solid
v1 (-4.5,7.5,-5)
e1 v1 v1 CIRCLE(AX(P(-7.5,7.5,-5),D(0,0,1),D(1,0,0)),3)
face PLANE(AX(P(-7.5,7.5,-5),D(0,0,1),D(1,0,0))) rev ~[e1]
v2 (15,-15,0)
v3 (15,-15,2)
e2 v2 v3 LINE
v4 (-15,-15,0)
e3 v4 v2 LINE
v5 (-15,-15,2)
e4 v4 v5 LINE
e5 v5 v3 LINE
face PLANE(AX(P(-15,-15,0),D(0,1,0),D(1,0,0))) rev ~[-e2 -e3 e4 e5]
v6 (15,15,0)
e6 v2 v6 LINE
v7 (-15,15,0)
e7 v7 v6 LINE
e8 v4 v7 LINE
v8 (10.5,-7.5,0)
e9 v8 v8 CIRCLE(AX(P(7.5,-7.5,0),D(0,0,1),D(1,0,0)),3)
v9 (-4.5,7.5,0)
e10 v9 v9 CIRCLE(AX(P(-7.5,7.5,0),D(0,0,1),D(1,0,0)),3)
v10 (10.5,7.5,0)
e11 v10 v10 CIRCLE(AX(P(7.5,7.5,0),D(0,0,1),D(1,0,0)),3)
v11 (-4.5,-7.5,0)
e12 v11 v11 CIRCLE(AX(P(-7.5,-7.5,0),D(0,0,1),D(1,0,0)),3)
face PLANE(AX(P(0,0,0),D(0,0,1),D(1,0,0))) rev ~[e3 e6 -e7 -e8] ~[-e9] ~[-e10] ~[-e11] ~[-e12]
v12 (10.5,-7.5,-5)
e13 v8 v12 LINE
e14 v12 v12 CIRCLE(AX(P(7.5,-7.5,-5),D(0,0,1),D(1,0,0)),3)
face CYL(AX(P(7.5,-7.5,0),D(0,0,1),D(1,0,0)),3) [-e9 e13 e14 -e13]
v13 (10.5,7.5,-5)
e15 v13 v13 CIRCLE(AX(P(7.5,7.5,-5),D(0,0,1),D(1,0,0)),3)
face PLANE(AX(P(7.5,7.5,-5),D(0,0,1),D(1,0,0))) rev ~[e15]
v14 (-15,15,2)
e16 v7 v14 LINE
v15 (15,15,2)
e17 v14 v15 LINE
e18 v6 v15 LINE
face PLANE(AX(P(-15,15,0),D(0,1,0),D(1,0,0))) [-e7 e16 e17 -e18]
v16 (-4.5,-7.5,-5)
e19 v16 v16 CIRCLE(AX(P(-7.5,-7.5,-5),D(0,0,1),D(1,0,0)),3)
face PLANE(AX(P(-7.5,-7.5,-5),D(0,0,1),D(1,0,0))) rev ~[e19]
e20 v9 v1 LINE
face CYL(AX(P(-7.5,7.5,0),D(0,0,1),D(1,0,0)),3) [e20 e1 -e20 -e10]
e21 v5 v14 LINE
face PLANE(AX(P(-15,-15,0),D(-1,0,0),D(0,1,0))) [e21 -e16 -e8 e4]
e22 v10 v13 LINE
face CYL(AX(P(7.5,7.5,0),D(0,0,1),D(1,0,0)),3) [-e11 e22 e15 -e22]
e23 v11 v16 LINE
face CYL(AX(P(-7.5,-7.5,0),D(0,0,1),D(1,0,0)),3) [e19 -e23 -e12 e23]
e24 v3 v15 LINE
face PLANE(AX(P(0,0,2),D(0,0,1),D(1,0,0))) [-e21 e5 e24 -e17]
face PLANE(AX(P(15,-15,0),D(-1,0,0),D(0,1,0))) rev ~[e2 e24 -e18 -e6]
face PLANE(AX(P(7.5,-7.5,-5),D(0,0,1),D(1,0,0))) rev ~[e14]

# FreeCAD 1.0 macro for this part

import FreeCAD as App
import Part
import Sketcher

V = App.Vector
Q = App.Units.Quantity


def add_polygon(sketch, points):
    """Adds a closed chain of lines whose ends are joined by coincident constraints."""
    first, n = sketch.GeometryCount, len(points)
    for a, b in zip(points, points[1:] + points[:1]):
        sketch.addGeometry(Part.LineSegment(App.Vector(*a, 0), App.Vector(*b, 0)), False)
    for i in range(n):
        sketch.addConstraint(Sketcher.Constraint("Coincident", first + i, 2, first + (i + 1) % n, 1))

doc = App.newDocument("Part")
body = doc.addObject("PartDesign::Body", "Body")

# Sketch on XY plane
sketch1 = body.newObject("Sketcher::SketchObject", "Sketch")
sketch1.AttachmentSupport = (doc.getObject("XY_Plane"), [""])
sketch1.MapMode = "FlatFace"
add_polygon(sketch1, [(-15, 15), (-15, -15), (15, -15), (15, 15)])  # lines 0-3
sketch1.addConstraint([
    Sketcher.Constraint("Vertical", 0),
    Sketcher.Constraint("Horizontal", 1),
    Sketcher.Constraint("Vertical", 2),
    Sketcher.Constraint("Horizontal", 3),
    Sketcher.Constraint("Symmetric", 0, 2, 2, 2, -1, 1),
    Sketcher.Constraint("Equal", 3, 0),
    Sketcher.Constraint("DistanceX", 1, 1, 1, 2, Q("30 mm")),
])
pad1 = body.newObject("PartDesign::Pad", "Pad")
pad1.Profile = sketch1
pad1.Length = 2

# Sketch on XY plane
sketch2 = body.newObject("Sketcher::SketchObject", "Sketch001")
sketch2.AttachmentSupport = (doc.getObject("XY_Plane"), [""])
sketch2.MapMode = "FlatFace"
sketch2.addGeometry([
    Part.Circle(V(-7.5, -7.5, 0), V(0, 0, 1), 3),
    Part.Circle(V(7.5, -7.5, 0), V(0, 0, 1), 3),
    Part.Circle(V(7.5, 7.5, 0), V(0, 0, 1), 3),
    Part.Circle(V(-7.5, 7.5, 0), V(0, 0, 1), 3),
], False)
sketch2.addConstraint([
    Sketcher.Constraint("Equal", 0, 1),
    Sketcher.Constraint("Equal", 1, 2),
    Sketcher.Constraint("Equal", 2, 3),
    Sketcher.Constraint("Symmetric", 0, 3, 2, 3, -1, 1),
    Sketcher.Constraint("Symmetric", 1, 3, 3, 3, -1, 1),
    Sketcher.Constraint("Symmetric", 0, 3, 1, 3, -2),
    Sketcher.Constraint("Diameter", 0, Q("6 mm")),
    Sketcher.Constraint("DistanceX", 0, 3, 1, 3, Q("15 mm")),
    Sketcher.Constraint("DistanceY", 1, 3, 2, 3, Q("15 mm")),
])
pad2 = body.newObject("PartDesign::Pad", "Pad001")
pad2.Profile = sketch2
pad2.Length = 5
pad2.Reversed = True

doc.recompute()
